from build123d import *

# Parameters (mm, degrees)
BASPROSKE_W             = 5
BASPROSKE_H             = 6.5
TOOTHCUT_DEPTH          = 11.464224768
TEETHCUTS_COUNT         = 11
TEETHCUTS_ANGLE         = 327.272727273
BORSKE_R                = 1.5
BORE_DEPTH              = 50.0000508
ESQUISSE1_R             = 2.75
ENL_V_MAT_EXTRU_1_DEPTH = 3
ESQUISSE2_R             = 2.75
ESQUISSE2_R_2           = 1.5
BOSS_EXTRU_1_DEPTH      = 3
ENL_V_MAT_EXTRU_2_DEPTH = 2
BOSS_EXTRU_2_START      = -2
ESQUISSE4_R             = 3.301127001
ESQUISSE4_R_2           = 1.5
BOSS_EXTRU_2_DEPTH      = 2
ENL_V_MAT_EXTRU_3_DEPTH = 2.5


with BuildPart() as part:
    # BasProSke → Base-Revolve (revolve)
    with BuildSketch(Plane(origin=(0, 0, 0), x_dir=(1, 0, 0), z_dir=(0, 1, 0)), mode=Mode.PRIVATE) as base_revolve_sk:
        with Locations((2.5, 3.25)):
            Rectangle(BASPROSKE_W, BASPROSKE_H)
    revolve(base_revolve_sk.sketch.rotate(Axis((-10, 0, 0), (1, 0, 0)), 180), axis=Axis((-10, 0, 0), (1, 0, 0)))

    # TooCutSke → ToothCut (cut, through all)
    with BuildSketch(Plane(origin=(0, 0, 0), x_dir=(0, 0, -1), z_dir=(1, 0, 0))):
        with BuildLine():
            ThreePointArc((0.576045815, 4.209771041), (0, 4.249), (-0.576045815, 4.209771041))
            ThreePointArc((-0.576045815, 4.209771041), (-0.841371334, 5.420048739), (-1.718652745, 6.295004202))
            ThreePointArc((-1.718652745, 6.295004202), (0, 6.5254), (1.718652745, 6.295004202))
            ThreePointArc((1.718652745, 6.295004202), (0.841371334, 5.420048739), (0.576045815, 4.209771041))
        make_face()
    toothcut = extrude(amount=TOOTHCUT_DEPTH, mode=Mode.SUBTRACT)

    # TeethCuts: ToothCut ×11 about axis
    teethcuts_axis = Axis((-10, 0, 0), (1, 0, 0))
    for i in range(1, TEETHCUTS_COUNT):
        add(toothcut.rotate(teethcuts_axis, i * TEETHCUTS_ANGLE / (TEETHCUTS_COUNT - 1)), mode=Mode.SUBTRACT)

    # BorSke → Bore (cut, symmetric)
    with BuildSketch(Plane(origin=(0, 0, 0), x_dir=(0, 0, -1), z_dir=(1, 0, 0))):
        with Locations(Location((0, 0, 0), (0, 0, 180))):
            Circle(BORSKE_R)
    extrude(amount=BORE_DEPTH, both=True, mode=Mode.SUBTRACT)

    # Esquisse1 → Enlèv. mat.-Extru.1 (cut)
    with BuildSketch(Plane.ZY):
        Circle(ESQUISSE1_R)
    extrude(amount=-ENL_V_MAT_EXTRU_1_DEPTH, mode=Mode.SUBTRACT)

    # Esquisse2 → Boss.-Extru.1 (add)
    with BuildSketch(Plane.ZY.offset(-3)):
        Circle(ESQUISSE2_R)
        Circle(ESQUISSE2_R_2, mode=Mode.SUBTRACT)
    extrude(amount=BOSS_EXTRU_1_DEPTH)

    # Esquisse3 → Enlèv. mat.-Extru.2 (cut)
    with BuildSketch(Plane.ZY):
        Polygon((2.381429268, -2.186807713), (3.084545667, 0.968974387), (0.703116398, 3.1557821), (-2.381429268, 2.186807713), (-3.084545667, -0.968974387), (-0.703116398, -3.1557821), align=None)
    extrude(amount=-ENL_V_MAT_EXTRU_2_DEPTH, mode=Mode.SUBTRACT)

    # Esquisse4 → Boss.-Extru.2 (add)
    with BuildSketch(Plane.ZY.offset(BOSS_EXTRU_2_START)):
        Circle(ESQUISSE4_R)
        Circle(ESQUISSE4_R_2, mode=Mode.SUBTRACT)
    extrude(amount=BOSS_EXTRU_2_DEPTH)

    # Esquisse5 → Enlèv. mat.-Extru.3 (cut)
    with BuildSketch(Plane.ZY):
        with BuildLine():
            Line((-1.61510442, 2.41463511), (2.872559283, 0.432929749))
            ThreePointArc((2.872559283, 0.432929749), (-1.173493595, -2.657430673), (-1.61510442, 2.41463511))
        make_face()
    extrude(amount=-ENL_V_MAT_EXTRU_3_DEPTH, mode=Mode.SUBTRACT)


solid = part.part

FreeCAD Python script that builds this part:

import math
import FreeCAD as App
import Part
import Sketcher


def add_polygon(sketch, points):
    """Adds a closed chain of lines whose ends are joined by coincident constraints."""
    first, n = sketch.GeometryCount, len(points)
    for a, b in zip(points, points[1:] + points[:1]):
        sketch.addGeometry(Part.LineSegment(App.Vector(*a, 0), App.Vector(*b, 0)), False)
    for i in range(n):
        sketch.addConstraint(Sketcher.Constraint("Coincident", first + i, 2, first + (i + 1) % n, 1))

doc = App.newDocument("Part")
body = doc.addObject("PartDesign::Body", "Body")

# Sketch on XZ plane
sketch1 = body.newObject("Sketcher::SketchObject", "Sketch")
sketch1.AttachmentSupport = (doc.getObject("XZ_Plane"), [""])
sketch1.MapMode = "FlatFace"
add_polygon(sketch1, [(0, -6), (0, 0), (5, 0), (5, -6)])  # lines 0-3
sketch1.addConstraint([
    Sketcher.Constraint("Vertical", 0),
    Sketcher.Constraint("Horizontal", 1),
    Sketcher.Constraint("Vertical", 2),
    Sketcher.Constraint("Horizontal", 3),
    Sketcher.Constraint("Coincident", 0, 2, -1, 1),
    Sketcher.Constraint("DistanceX", 1, 1, 1, 2, 5.0),
    Sketcher.Constraint("DistanceY", 0, 1, 0, 2, 6.5),
])
revolution = body.newObject("PartDesign::Revolution", "Revolution")
revolution.Profile = sketch1
revolution.ReferenceAxis = (sketch1, ["H_Axis"])
revolution.Angle = 360

# Sketch on YZ plane
sketch2 = body.newObject("Sketcher::SketchObject", "Sketch001")
sketch2.AttachmentSupport = (doc.getObject("YZ_Plane"), [""])
sketch2.MapMode = "FlatFace"
sketch2.addGeometry([
    Part.ArcOfCircle(Part.Circle(App.Vector(0, 0, 0), App.Vector(0, 0, 1), 4.2), math.radians(-7.79), math.radians(7.79)),
    Part.ArcOfCircle(Part.Circle(App.Vector(4.4, -2.8, 0), App.Vector(0, 0, 1), 2.2), math.radians(29), math.radians(94)),
    Part.ArcOfCircle(Part.Circle(App.Vector(0, 0, 0), App.Vector(0, 0, 1), 6.5), math.radians(-15), math.radians(15)),
    Part.ArcOfCircle(Part.Circle(App.Vector(4.4, 2.8, 0), App.Vector(0, 0, 1), 2.2), math.radians(-94), math.radians(-29)),
], False)
sketch2.addConstraint([
    Sketcher.Constraint("Coincident", 0, 1, 1, 2),
    Sketcher.Constraint("Coincident", 1, 1, 2, 1),
    Sketcher.Constraint("Coincident", 2, 2, 3, 2),
    Sketcher.Constraint("Coincident", 3, 1, 0, 2),
    Sketcher.Constraint("Coincident", 0, 3, -1, 1),
    Sketcher.Constraint("Coincident", 2, 3, -1, 1),
    Sketcher.Constraint("Equal", 1, 3),
    Sketcher.Constraint("Symmetric", 1, 3, 3, 3, -1),
    Sketcher.Constraint("Radius", 1, 2.2),
    Sketcher.Constraint("Radius", 0, 4.249),
    Sketcher.Constraint("Radius", 2, 6.5254),
    Sketcher.Constraint("DistanceY", 0, 1, 2, 2, 2.294699),
    Sketcher.Constraint("DistanceX", -1, 1, 0, 1, 4.209771),
])
pocket1 = body.newObject("PartDesign::Pocket", "Pocket")
pocket1.Profile = sketch2
pocket1.Type = "ThroughAll"
pocket1.Reversed = True
doc.recompute()

polarpattern = body.newObject("PartDesign::PolarPattern", "PolarPattern")
polarpattern.Originals = [pocket1]
polarpattern.Axis = (doc.getObject("X_Axis"), [""])
polarpattern.Angle = 360
polarpattern.Occurrences = 11
body.Tip = polarpattern

# Sketch on YZ plane
sketch3 = body.newObject("Sketcher::SketchObject", "Sketch002")
sketch3.AttachmentSupport = (doc.getObject("YZ_Plane"), [""])
sketch3.MapMode = "FlatFace"
sketch3.addGeometry(Part.Circle(App.Vector(0, 0, 0), App.Vector(0, 0, 1), 1.5), False)
sketch3.addConstraint([
    Sketcher.Constraint("Coincident", 0, 3, -1, 1),
    Sketcher.Constraint("Diameter", 0, 3.0),
])
pocket2 = body.newObject("PartDesign::Pocket", "Pocket001")
pocket2.Profile = sketch3
pocket2.Length = 100.000102
pocket2.Midplane = True

# Sketch on YZ plane
sketch4 = body.newObject("Sketcher::SketchObject", "Sketch003")
sketch4.AttachmentSupport = (doc.getObject("YZ_Plane"), [""])
sketch4.MapMode = "FlatFace"
sketch4.addGeometry(Part.Circle(App.Vector(0, 0, 0), App.Vector(0, 0, 1), 2.8), False)
sketch4.addConstraint([
    Sketcher.Constraint("Coincident", 0, 3, -1, 1),
    Sketcher.Constraint("Diameter", 0, 5.5),
])
pocket3 = body.newObject("PartDesign::Pocket", "Pocket002")
pocket3.Profile = sketch4
pocket3.Length = 3
pocket3.Reversed = True

# Sketch on YZ plane
sketch5 = body.newObject("Sketcher::SketchObject", "Sketch004")
sketch5.AttachmentSupport = (doc.getObject("YZ_Plane"), [""])
sketch5.MapMode = "FlatFace"
sketch5.AttachmentOffset = App.Placement(App.Vector(0, 0, 3), App.Rotation())
sketch5.addGeometry([
    Part.Circle(App.Vector(0, 0, 0), App.Vector(0, 0, 1), 2.8),
    Part.Circle(App.Vector(0, 0, 0), App.Vector(0, 0, 1), 1.5),
], False)
sketch5.addConstraint([
    Sketcher.Constraint("Coincident", 0, 3, -1, 1),
    Sketcher.Constraint("Coincident", 1, 3, -1, 1),
    Sketcher.Constraint("Diameter", 1, 3.0),
    Sketcher.Constraint("Diameter", 0, 5.5),
])
pad1 = body.newObject("PartDesign::Pad", "Pad")
pad1.Profile = sketch5
pad1.Length = 3
pad1.Reversed = True

# Sketch on YZ plane
sketch6 = body.newObject("Sketcher::SketchObject", "Sketch005")
sketch6.AttachmentSupport = (doc.getObject("YZ_Plane"), [""])
sketch6.MapMode = "FlatFace"
add_polygon(sketch6, [(-2.2, 2.4), (1, 3.1), (3.2, 0.7), (2.2, -2.4), (-1, -3.1), (-3.2, -0.7)])  # lines 0-5
sketch6.addConstraint([
    Sketcher.Constraint("Symmetric", 0, 2, 3, 2, -1, 1),
    Sketcher.Constraint("Symmetric", 1, 2, 4, 2, -1, 1),
    Sketcher.Constraint("Symmetric", 2, 2, 5, 2, -1, 1),
    Sketcher.Constraint("Equal", 0, 1),
    Sketcher.Constraint("Equal", 1, 2),
    Sketcher.Constraint("Distance", 0, 3.233162),
    Sketcher.Constraint("DistanceY", 2, 2, -1, 1, 2.381429),
    Sketcher.Constraint("DistanceY", 1, 2, 0, 2, 2.381429),
    Sketcher.Constraint("DistanceX", 3, 2, 0, 2, 1.937949),
])
pocket4 = body.newObject("PartDesign::Pocket", "Pocket003")
pocket4.Profile = sketch6
pocket4.Length = 2
pocket4.Reversed = True

# Sketch on YZ plane
sketch7 = body.newObject("Sketcher::SketchObject", "Sketch006")
sketch7.AttachmentSupport = (doc.getObject("YZ_Plane"), [""])
sketch7.MapMode = "FlatFace"
sketch7.AttachmentOffset = App.Placement(App.Vector(0, 0, 2), App.Rotation())
sketch7.addGeometry([
    Part.Circle(App.Vector(0, 0, 0), App.Vector(0, 0, 1), 3.3),
    Part.Circle(App.Vector(0, 0, 0), App.Vector(0, 0, 1), 1.5),
], False)
sketch7.addConstraint([
    Sketcher.Constraint("Coincident", 0, 3, -1, 1),
    Sketcher.Constraint("Coincident", 1, 3, -1, 1),
    Sketcher.Constraint("Diameter", 1, 3.0),
    Sketcher.Constraint("Diameter", 0, 6.602254),
])
pad2 = body.newObject("PartDesign::Pad", "Pad001")
pad2.Profile = sketch7
pad2.Length = 2
pad2.Reversed = True

# Sketch on YZ plane
sketch8 = body.newObject("Sketcher::SketchObject", "Sketch007")
sketch8.AttachmentSupport = (doc.getObject("YZ_Plane"), [""])
sketch8.MapMode = "FlatFace"
sketch8.addGeometry([
    Part.LineSegment(App.Vector(0.4, 2.9, 0), App.Vector(2.4, -1.6, 0)),
    Part.ArcOfCircle(Part.Circle(App.Vector(0, 0, 0), App.Vector(0, 0, 1), 2.9), math.radians(81), math.radians(326)),
], False)
sketch8.addConstraint([
    Sketcher.Constraint("Coincident", 0, 1, 1, 1),
    Sketcher.Constraint("Coincident", 1, 2, 0, 2),
    Sketcher.Constraint("Coincident", 1, 3, -1, 1),
    Sketcher.Constraint("Radius", 1, 2.905),
    Sketcher.Constraint("Distance", 0, 4.90574),
    Sketcher.Constraint("DistanceX", -1, 1, 0, 1, 0.43293),
])
pocket5 = body.newObject("PartDesign::Pocket", "Pocket004")
pocket5.Profile = sketch8
pocket5.Length = 2.5
pocket5.Reversed = True

doc.recompute()
